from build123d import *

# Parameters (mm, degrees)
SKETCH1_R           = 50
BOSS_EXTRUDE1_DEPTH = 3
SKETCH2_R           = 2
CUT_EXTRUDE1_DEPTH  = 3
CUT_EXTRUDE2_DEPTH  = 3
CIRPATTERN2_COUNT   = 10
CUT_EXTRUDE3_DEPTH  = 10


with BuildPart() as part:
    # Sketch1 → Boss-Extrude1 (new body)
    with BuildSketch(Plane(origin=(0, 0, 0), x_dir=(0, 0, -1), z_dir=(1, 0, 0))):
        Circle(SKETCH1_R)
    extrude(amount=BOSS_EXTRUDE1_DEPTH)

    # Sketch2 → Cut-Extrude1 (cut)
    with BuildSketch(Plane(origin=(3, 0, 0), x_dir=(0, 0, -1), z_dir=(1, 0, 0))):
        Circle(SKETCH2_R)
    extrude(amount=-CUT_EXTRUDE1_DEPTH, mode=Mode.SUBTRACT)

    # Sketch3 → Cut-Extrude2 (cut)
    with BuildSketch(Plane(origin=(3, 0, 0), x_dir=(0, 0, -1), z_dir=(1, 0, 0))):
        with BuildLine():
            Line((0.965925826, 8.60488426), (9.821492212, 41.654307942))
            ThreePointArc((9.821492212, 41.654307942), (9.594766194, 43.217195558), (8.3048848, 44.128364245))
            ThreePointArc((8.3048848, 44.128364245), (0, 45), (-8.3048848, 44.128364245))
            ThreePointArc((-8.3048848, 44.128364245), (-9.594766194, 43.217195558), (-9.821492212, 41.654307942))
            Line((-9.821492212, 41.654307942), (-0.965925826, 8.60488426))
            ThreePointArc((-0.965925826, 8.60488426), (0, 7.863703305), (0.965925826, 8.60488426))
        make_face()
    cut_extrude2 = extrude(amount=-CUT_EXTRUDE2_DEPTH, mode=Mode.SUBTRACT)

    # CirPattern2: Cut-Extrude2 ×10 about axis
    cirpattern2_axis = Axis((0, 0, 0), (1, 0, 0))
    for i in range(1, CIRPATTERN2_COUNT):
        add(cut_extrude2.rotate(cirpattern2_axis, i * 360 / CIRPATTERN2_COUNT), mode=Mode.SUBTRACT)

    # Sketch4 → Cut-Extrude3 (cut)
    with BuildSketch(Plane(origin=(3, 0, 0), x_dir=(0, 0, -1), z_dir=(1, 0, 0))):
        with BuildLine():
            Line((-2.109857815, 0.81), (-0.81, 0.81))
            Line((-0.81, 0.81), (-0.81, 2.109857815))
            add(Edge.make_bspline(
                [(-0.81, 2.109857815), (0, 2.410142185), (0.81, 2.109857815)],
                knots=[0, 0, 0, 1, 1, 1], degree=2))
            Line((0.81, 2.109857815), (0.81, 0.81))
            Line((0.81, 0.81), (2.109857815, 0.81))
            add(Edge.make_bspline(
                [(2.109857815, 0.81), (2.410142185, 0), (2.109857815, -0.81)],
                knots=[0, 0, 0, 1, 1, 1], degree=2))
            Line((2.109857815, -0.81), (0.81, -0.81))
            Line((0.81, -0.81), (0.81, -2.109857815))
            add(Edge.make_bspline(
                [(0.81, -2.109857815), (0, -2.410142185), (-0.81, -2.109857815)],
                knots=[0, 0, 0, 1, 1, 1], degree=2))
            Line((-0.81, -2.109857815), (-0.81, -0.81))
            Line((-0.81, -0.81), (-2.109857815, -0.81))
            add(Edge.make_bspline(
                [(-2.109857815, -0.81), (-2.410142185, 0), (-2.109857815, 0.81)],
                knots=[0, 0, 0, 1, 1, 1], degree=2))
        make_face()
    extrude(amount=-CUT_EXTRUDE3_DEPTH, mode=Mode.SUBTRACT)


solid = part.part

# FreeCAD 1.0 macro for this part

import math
import FreeCAD as App
import Part
import Sketcher
from FreeCAD import Vector
Q = App.Units.Quantity

doc = App.newDocument("Part")
body = doc.addObject("PartDesign::Body", "Body")

# Sketch on YZ plane
sketch1 = body.newObject("Sketcher::SketchObject", "Sketch")
sketch1.AttachmentSupport = (doc.getObject("YZ_Plane"), [""])
sketch1.MapMode = "FlatFace"
sketch1.addGeometry(Part.Circle(Vector(0, 0, 0), Vector(0, 0, 1), 50), False)
sketch1.addConstraint([
    Sketcher.Constraint("Coincident", 0, 3, -1, 1),
    Sketcher.Constraint("Diameter", 0, Q("100 mm")),
])
pad1 = body.newObject("PartDesign::Pad", "Pad")
pad1.Profile = sketch1
pad1.Length = 3

# Sketch on YZ plane
sketch2 = body.newObject("Sketcher::SketchObject", "Sketch001")
sketch2.AttachmentSupport = (doc.getObject("YZ_Plane"), [""])
sketch2.MapMode = "FlatFace"
sketch2.AttachmentOffset = App.Placement(Vector(0, 0, 3), App.Rotation())
sketch2.addGeometry(Part.Circle(Vector(0, 0, 0), Vector(0, 0, 1), 2), False)
sketch2.addConstraint([
    Sketcher.Constraint("Coincident", 0, 3, -1, 1),
    Sketcher.Constraint("Diameter", 0, Q("4 mm")),
])
pocket1 = body.newObject("PartDesign::Pocket", "Pocket")
pocket1.Profile = sketch2
pocket1.Length = 3

# Sketch on YZ plane
sketch3 = body.newObject("Sketcher::SketchObject", "Sketch002")
sketch3.AttachmentSupport = (doc.getObject("YZ_Plane"), [""])
sketch3.MapMode = "FlatFace"
sketch3.AttachmentOffset = App.Placement(Vector(0, 0, 3), App.Rotation())
sketch3.addGeometry([
    Part.LineSegment(Vector(8.604884, -0.965926, 0), Vector(41.654308, -9.821492, 0)),  # 0
    Part.ArcOfCircle(Part.Circle(Vector(42.171946, -7.889641, 0), Vector(0, 0, 1), 2), math.radians(-105), math.radians(-11.983039)),  # 1
    Part.ArcOfCircle(Part.Circle(Vector(5, 0, 0), Vector(0, 0, 1), 40), math.radians(-11.983039), math.radians(11.983039)),  # 2
    Part.ArcOfCircle(Part.Circle(Vector(42.171946, 7.889641, 0), Vector(0, 0, 1), 2), math.radians(11.983039), math.radians(105)),  # 3
    Part.LineSegment(Vector(41.654308, 9.821492, 0), Vector(8.604884, 0.965926, 0)),  # 4
    Part.ArcOfCircle(Part.Circle(Vector(8.863703, 0, 0), Vector(0, 0, 1), 1), math.radians(105), math.radians(255)),  # 5
], False)
sketch3.addConstraint([
    Sketcher.Constraint("Tangent", 0, 2, 1, 1),
    Sketcher.Constraint("Tangent", 1, 2, 2, 1),
    Sketcher.Constraint("Tangent", 2, 2, 3, 1),
    Sketcher.Constraint("Tangent", 3, 2, 4, 1),
    Sketcher.Constraint("Tangent", 4, 2, 5, 1),
    Sketcher.Constraint("Tangent", 5, 2, 0, 1),
    Sketcher.Constraint("Equal", 1, 3),
    Sketcher.Constraint("Symmetric", 1, 3, 3, 3, -1),
    Sketcher.Constraint("PointOnObject", 5, 3, -1),
    Sketcher.Constraint("Radius", 1, Q("2 mm")),
    Sketcher.Constraint("Radius", 2, Q("40 mm")),
    Sketcher.Constraint("Radius", 5, Q("1 mm")),
    Sketcher.Constraint("Angle", 0, Q("-15 deg")),
    Sketcher.Constraint("DistanceX", -1, 1, 2, 3, Q("5 mm")),
    Sketcher.Constraint("Distance", 0, Q("34.215281 mm")),
])
pocket2 = body.newObject("PartDesign::Pocket", "Pocket001")
pocket2.Profile = sketch3
pocket2.Length = 3
doc.recompute()

polarpattern = body.newObject("PartDesign::PolarPattern", "PolarPattern")
polarpattern.Originals = [pocket2]
polarpattern.Axis = (doc.getObject("X_Axis"), [""])
polarpattern.Angle = 360
polarpattern.Occurrences = 10
body.Tip = polarpattern

# Sketch on YZ plane
sketch4 = body.newObject("Sketcher::SketchObject", "Sketch003")
sketch4.AttachmentSupport = (doc.getObject("YZ_Plane"), [""])
sketch4.MapMode = "FlatFace"
sketch4.AttachmentOffset = App.Placement(Vector(0, 0, 3), App.Rotation())
sketch4.addGeometry([
    Part.LineSegment(Vector(0.81, 0.81, 0), Vector(0.81, 2.109858, 0)),  # 0
    Part.BSplineCurve([Vector(-0.81, 2.109858, 0), Vector(0, 2.410142, 0), Vector(0.81, 2.109858, 0)], [3, 3], [0, 1], False, 2, [1, 1, 1], False),  # 1
    Part.LineSegment(Vector(-0.81, 2.109858, 0), Vector(-0.81, 0.81, 0)),  # 2
    Part.LineSegment(Vector(-0.81, 0.81, 0), Vector(-2.109858, 0.81, 0)),  # 3
    Part.BSplineCurve([Vector(-2.109858, -0.81, 0), Vector(-2.410142, 0, 0), Vector(-2.109858, 0.81, 0)], [3, 3], [0, 1], False, 2, [1, 1, 1], False),  # 4
    Part.LineSegment(Vector(-2.109858, -0.81, 0), Vector(-0.81, -0.81, 0)),  # 5
    Part.LineSegment(Vector(-0.81, -0.81, 0), Vector(-0.81, -2.109858, 0)),  # 6
    Part.BSplineCurve([Vector(0.81, -2.109858, 0), Vector(0, -2.410142, 0), Vector(-0.81, -2.109858, 0)], [3, 3], [0, 1], False, 2, [1, 1, 1], False),  # 7
    Part.LineSegment(Vector(0.81, -2.109858, 0), Vector(0.81, -0.81, 0)),  # 8
    Part.LineSegment(Vector(0.81, -0.81, 0), Vector(2.109858, -0.81, 0)),  # 9
    Part.BSplineCurve([Vector(2.109858, 0.81, 0), Vector(2.410142, 0, 0), Vector(2.109858, -0.81, 0)], [3, 3], [0, 1], False, 2, [1, 1, 1], False),  # 10
    Part.LineSegment(Vector(2.109858, 0.81, 0), Vector(0.81, 0.81, 0)),  # 11
], False)
sketch4.addConstraint([
    Sketcher.Constraint("Block", 1),
    Sketcher.Constraint("Block", 4),
    Sketcher.Constraint("Block", 7),
    Sketcher.Constraint("Block", 10),
    Sketcher.Constraint("Coincident", 0, 2, 1, 2),
    Sketcher.Constraint("Coincident", 1, 1, 2, 1),
    Sketcher.Constraint("Coincident", 2, 2, 3, 1),
    Sketcher.Constraint("Coincident", 3, 2, 4, 2),
    Sketcher.Constraint("Coincident", 4, 1, 5, 1),
    Sketcher.Constraint("Coincident", 5, 2, 6, 1),
    Sketcher.Constraint("Coincident", 6, 2, 7, 2),
    Sketcher.Constraint("Coincident", 7, 1, 8, 1),
    Sketcher.Constraint("Coincident", 8, 2, 9, 1),
    Sketcher.Constraint("Coincident", 9, 2, 10, 2),
    Sketcher.Constraint("Coincident", 10, 1, 11, 1),
    Sketcher.Constraint("Coincident", 11, 2, 0, 1),
    Sketcher.Constraint("Vertical", 0),
    Sketcher.Constraint("Vertical", 2),
    Sketcher.Constraint("Horizontal", 3),
    Sketcher.Constraint("Horizontal", 5),
    Sketcher.Constraint("Vertical", 6),
    Sketcher.Constraint("Vertical", 8),
    Sketcher.Constraint("Horizontal", 9),
    Sketcher.Constraint("Horizontal", 11),
])
pocket3 = body.newObject("PartDesign::Pocket", "Pocket002")
pocket3.Profile = sketch4
pocket3.Length = 10

doc.recompute()
